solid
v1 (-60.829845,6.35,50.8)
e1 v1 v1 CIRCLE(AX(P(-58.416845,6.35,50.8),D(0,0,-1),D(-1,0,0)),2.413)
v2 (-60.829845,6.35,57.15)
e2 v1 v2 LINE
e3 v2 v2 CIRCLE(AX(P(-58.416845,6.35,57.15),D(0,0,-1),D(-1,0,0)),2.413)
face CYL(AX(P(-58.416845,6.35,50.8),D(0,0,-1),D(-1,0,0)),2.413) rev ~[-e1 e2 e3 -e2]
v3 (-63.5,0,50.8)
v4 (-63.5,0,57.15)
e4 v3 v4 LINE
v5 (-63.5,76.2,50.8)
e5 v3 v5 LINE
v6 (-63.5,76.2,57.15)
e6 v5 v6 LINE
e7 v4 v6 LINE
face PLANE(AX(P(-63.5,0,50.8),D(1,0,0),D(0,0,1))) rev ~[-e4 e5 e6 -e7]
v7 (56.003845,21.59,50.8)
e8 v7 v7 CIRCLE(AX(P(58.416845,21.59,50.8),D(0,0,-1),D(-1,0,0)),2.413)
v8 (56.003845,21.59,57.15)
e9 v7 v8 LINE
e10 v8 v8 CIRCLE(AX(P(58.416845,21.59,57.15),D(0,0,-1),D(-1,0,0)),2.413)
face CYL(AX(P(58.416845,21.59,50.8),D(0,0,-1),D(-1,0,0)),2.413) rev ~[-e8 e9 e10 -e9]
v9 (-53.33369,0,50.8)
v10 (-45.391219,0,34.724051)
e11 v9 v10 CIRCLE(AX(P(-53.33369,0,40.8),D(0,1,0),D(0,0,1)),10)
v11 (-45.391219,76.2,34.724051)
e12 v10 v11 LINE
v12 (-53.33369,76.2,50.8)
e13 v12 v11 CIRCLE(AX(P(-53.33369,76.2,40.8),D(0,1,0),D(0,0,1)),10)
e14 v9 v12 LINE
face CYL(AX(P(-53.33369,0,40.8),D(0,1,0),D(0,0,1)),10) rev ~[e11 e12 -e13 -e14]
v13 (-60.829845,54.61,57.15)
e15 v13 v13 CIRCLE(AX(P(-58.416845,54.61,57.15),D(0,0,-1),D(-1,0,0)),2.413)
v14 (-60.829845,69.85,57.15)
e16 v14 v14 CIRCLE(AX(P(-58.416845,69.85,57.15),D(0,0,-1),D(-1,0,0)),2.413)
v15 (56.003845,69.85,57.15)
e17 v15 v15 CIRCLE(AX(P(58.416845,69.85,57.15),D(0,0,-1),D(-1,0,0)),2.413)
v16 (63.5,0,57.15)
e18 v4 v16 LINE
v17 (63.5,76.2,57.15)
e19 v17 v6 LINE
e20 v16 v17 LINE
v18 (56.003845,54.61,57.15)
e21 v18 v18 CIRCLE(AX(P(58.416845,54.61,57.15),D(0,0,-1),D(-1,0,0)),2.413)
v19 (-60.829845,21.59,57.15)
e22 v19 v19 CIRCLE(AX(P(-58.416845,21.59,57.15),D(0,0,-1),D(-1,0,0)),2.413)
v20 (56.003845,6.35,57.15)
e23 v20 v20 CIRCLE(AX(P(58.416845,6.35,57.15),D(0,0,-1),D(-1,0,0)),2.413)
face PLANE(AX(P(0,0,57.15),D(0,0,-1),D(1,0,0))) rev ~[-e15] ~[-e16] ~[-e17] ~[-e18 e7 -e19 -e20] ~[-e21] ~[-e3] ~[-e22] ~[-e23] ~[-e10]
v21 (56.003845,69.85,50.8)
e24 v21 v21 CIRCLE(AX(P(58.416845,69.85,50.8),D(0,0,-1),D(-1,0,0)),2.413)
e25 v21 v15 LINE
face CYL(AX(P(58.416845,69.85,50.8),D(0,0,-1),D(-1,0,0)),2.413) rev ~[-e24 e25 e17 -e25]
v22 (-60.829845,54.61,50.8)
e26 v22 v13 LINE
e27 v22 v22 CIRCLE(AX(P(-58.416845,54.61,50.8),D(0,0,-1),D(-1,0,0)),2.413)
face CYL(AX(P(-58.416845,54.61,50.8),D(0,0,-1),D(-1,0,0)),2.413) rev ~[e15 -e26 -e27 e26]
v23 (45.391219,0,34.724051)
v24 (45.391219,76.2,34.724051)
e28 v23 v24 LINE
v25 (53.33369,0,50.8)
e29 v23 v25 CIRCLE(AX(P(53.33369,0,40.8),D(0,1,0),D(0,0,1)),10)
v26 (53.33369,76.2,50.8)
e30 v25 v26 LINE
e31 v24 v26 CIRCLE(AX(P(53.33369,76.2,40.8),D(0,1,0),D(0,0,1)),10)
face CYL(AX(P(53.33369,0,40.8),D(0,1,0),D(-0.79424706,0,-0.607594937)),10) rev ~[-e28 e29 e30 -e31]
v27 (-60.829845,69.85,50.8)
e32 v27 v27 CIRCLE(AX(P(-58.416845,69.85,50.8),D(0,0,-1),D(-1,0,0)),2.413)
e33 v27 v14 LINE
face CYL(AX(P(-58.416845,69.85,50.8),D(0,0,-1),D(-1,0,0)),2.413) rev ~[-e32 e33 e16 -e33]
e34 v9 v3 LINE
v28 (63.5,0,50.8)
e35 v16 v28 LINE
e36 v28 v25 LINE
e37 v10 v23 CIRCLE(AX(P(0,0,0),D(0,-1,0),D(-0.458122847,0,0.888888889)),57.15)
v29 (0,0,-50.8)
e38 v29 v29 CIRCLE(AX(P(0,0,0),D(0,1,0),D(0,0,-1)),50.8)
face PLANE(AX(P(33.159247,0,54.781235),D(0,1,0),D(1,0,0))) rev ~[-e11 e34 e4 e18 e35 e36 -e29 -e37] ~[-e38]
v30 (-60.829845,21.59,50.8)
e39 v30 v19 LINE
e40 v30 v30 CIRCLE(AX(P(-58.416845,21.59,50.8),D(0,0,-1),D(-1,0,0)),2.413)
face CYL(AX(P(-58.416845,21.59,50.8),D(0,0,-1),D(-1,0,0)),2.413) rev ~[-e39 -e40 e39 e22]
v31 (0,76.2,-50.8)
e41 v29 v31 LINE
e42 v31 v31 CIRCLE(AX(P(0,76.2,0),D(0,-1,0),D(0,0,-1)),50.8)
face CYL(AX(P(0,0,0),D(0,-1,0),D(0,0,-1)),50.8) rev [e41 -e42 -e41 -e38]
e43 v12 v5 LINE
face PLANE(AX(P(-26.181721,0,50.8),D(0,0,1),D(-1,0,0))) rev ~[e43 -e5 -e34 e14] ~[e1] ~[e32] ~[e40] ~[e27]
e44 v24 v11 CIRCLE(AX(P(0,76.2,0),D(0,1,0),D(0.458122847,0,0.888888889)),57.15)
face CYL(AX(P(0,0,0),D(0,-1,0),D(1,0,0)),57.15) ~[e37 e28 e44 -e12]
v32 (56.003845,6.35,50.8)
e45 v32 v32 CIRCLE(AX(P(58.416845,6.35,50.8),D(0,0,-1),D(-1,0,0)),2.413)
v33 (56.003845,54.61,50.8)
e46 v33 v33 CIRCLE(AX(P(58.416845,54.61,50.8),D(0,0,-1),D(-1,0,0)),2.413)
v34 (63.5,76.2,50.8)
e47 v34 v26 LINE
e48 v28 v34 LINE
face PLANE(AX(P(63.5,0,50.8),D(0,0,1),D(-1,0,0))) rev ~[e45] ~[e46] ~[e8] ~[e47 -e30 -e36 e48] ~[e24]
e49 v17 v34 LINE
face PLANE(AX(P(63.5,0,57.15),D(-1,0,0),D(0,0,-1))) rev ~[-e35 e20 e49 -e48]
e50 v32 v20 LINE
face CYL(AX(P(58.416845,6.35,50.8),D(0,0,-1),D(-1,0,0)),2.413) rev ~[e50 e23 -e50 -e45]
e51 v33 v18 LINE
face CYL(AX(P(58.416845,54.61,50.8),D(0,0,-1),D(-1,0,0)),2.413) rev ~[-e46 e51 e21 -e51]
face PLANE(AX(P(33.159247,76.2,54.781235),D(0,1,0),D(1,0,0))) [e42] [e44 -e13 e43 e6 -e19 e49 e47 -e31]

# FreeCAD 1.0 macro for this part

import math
import FreeCAD as App
import Part
import Sketcher
from FreeCAD import Vector
Q = App.Units.Quantity


def edges_at(feature, points):
    """Names of the edges that pass closest to the given points."""
    edges = feature.Shape.Edges
    near = lambda p: min(range(len(edges)), key=lambda i: edges[i].distToShape(Part.Vertex(*p))[0])
    return sorted({f"Edge{near(p) + 1}" for p in points})

doc = App.newDocument("Part")
params = doc.addObject("Spreadsheet::Sheet", "Params")
for row, (alias, value) in enumerate([
    ("sketch1_diameter", "4 in"),
    ("sketch1_width", "5 in"),
    ("sketch1_radius", "2.25 in"),
    ("sketch1_height", "0.25 in"),
    ("pad1_length", "3 in"),
    ("fillet_radius", "10 mm"),
    ("sketch2_diameter", "0.19 in"),
], start=1):
    params.set(f"A{row}", alias)
    params.set(f"B{row}", "=" + value)
    params.setAlias(f"B{row}", alias)

body = doc.addObject("PartDesign::Body", "Body")

# Sketch on XZ plane
sketch1 = body.newObject("Sketcher::SketchObject", "Sketch")
sketch1.AttachmentSupport = (doc.getObject("XZ_Plane"), [""])
sketch1.MapMode = "FlatFace"
sketch1.addGeometry([
    Part.ArcOfCircle(Part.Circle(Vector(0, 0, 0), Vector(0, 0, 1), 57), math.radians(117), math.radians(423)),  # 0
    Part.LineSegment(Vector(-26, 51, 0), Vector(-64, 51, 0)),  # 1
    Part.LineSegment(Vector(-64, 51, 0), Vector(-64, 57, 0)),  # 2
    Part.LineSegment(Vector(-64, 57, 0), Vector(64, 57, 0)),  # 3
    Part.LineSegment(Vector(64, 57, 0), Vector(64, 51, 0)),  # 4
    Part.LineSegment(Vector(64, 51, 0), Vector(26, 51, 0)),  # 5
    Part.Circle(Vector(0, 0, 0), Vector(0, 0, 1), 51),  # 6
], False)
sketch1.addConstraint([
    Sketcher.Constraint("Coincident", 0, 1, 1, 1),
    Sketcher.Constraint("Coincident", 1, 2, 2, 1),
    Sketcher.Constraint("Coincident", 2, 2, 3, 1),
    Sketcher.Constraint("Coincident", 3, 2, 4, 1),
    Sketcher.Constraint("Coincident", 4, 2, 5, 1),
    Sketcher.Constraint("Coincident", 5, 2, 0, 2),
    Sketcher.Constraint("Horizontal", 1),
    Sketcher.Constraint("Vertical", 2),
    Sketcher.Constraint("Horizontal", 3),
    Sketcher.Constraint("Vertical", 4),
    Sketcher.Constraint("Horizontal", 5),
    Sketcher.Constraint("Coincident", 0, 3, -1, 1),
    Sketcher.Constraint("Coincident", 6, 3, -1, 1),
    Sketcher.Constraint("Symmetric", 1, 2, 4, 2, -2),
    Sketcher.Constraint("Diameter", 6, Q("4 in")),
    Sketcher.Constraint("DistanceX", 3, 1, 3, 2, Q("5 in")),
    Sketcher.Constraint("Radius", 0, Q("2.25 in")),
    Sketcher.Constraint("DistanceY", -1, 1, 0, 1, Q("2 in")),
    Sketcher.Constraint("DistanceY", 2, 1, 2, 2, Q("0.25 in")),
])
sketch1.setExpression("Constraints[14]", "Params.sketch1_diameter")
sketch1.setExpression("Constraints[15]", "Params.sketch1_width")
sketch1.setExpression("Constraints[16]", "Params.sketch1_radius")
sketch1.setExpression("Constraints[18]", "Params.sketch1_height")
pad1 = body.newObject("PartDesign::Pad", "Pad")
pad1.Profile = sketch1
pad1.setExpression("Length", "Params.pad1_length")
pad1.Reversed = True
doc.recompute()

fillet = body.newObject("PartDesign::Fillet", "Fillet")
fillet.Base = (pad1, edges_at(pad1, [(26.182, 38.1, 50.8), (-26.182, 38.1, 50.8)]))
fillet.setExpression("Radius", "Params.fillet_radius")

# Sketch on XY plane
sketch2 = body.newObject("Sketcher::SketchObject", "Sketch001")
sketch2.AttachmentSupport = (doc.getObject("XY_Plane"), [""])
sketch2.MapMode = "FlatFace"
sketch2.AttachmentOffset = App.Placement(Vector(0, 0, 2 * 25.4), App.Rotation())
sketch2.addGeometry([
    Part.Circle(Vector(-58.4, 6.3, 0), Vector(0, 0, 1), 2.4),  # 0
    Part.Circle(Vector(-58.4, 21.6, 0), Vector(0, 0, 1), 2.4),  # 1
    Part.Circle(Vector(-58.4, 69.8, 0), Vector(0, 0, 1), 2.4),  # 2
    Part.Circle(Vector(-58.4, 54.6, 0), Vector(0, 0, 1), 2.4),  # 3
    Part.Circle(Vector(58.4, 6.3, 0), Vector(0, 0, 1), 2.4),  # 4
    Part.Circle(Vector(58.4, 21.6, 0), Vector(0, 0, 1), 2.4),  # 5
    Part.Circle(Vector(58.4, 69.8, 0), Vector(0, 0, 1), 2.4),  # 6
    Part.Circle(Vector(58.4, 54.6, 0), Vector(0, 0, 1), 2.4),  # 7
], False)
sketch2.addConstraint([
    Sketcher.Constraint("Equal", 0, 1),
    Sketcher.Constraint("Equal", 1, 2),
    Sketcher.Constraint("Equal", 2, 3),
    Sketcher.Constraint("Equal", 3, 4),
    Sketcher.Constraint("Equal", 4, 5),
    Sketcher.Constraint("Equal", 5, 6),
    Sketcher.Constraint("Equal", 6, 7),
    Sketcher.Constraint("Symmetric", 0, 3, 4, 3, -2),
    Sketcher.Constraint("Symmetric", 1, 3, 5, 3, -2),
    Sketcher.Constraint("Symmetric", 2, 3, 6, 3, -2),
    Sketcher.Constraint("Symmetric", 3, 3, 7, 3, -2),
    Sketcher.Constraint("Vertical", 0, 3, 1, 3),
    Sketcher.Constraint("Vertical", 1, 3, 2, 3),
    Sketcher.Constraint("Vertical", 2, 3, 3, 3),
    Sketcher.Constraint("Diameter", 0, Q("0.19 in")),
    Sketcher.Constraint("DistanceY", 0, 3, 1, 3, Q("0.6 in")),
    Sketcher.Constraint("DistanceY", 1, 3, 2, 3, Q("1.9 in")),
    Sketcher.Constraint("DistanceY", 3, 3, 2, 3, Q("0.6 in")),
    Sketcher.Constraint("DistanceY", -1, 1, 0, 3, Q("0.25 in")),
    Sketcher.Constraint("DistanceX", 0, 3, 4, 3, 116.83369),
])
sketch2.setExpression("Constraints[14]", "Params.sketch2_diameter")
pocket1 = body.newObject("PartDesign::Pocket", "Pocket")
pocket1.Profile = sketch2
pocket1.Type = "ThroughAll"
pocket1.Reversed = True

doc.recompute()
